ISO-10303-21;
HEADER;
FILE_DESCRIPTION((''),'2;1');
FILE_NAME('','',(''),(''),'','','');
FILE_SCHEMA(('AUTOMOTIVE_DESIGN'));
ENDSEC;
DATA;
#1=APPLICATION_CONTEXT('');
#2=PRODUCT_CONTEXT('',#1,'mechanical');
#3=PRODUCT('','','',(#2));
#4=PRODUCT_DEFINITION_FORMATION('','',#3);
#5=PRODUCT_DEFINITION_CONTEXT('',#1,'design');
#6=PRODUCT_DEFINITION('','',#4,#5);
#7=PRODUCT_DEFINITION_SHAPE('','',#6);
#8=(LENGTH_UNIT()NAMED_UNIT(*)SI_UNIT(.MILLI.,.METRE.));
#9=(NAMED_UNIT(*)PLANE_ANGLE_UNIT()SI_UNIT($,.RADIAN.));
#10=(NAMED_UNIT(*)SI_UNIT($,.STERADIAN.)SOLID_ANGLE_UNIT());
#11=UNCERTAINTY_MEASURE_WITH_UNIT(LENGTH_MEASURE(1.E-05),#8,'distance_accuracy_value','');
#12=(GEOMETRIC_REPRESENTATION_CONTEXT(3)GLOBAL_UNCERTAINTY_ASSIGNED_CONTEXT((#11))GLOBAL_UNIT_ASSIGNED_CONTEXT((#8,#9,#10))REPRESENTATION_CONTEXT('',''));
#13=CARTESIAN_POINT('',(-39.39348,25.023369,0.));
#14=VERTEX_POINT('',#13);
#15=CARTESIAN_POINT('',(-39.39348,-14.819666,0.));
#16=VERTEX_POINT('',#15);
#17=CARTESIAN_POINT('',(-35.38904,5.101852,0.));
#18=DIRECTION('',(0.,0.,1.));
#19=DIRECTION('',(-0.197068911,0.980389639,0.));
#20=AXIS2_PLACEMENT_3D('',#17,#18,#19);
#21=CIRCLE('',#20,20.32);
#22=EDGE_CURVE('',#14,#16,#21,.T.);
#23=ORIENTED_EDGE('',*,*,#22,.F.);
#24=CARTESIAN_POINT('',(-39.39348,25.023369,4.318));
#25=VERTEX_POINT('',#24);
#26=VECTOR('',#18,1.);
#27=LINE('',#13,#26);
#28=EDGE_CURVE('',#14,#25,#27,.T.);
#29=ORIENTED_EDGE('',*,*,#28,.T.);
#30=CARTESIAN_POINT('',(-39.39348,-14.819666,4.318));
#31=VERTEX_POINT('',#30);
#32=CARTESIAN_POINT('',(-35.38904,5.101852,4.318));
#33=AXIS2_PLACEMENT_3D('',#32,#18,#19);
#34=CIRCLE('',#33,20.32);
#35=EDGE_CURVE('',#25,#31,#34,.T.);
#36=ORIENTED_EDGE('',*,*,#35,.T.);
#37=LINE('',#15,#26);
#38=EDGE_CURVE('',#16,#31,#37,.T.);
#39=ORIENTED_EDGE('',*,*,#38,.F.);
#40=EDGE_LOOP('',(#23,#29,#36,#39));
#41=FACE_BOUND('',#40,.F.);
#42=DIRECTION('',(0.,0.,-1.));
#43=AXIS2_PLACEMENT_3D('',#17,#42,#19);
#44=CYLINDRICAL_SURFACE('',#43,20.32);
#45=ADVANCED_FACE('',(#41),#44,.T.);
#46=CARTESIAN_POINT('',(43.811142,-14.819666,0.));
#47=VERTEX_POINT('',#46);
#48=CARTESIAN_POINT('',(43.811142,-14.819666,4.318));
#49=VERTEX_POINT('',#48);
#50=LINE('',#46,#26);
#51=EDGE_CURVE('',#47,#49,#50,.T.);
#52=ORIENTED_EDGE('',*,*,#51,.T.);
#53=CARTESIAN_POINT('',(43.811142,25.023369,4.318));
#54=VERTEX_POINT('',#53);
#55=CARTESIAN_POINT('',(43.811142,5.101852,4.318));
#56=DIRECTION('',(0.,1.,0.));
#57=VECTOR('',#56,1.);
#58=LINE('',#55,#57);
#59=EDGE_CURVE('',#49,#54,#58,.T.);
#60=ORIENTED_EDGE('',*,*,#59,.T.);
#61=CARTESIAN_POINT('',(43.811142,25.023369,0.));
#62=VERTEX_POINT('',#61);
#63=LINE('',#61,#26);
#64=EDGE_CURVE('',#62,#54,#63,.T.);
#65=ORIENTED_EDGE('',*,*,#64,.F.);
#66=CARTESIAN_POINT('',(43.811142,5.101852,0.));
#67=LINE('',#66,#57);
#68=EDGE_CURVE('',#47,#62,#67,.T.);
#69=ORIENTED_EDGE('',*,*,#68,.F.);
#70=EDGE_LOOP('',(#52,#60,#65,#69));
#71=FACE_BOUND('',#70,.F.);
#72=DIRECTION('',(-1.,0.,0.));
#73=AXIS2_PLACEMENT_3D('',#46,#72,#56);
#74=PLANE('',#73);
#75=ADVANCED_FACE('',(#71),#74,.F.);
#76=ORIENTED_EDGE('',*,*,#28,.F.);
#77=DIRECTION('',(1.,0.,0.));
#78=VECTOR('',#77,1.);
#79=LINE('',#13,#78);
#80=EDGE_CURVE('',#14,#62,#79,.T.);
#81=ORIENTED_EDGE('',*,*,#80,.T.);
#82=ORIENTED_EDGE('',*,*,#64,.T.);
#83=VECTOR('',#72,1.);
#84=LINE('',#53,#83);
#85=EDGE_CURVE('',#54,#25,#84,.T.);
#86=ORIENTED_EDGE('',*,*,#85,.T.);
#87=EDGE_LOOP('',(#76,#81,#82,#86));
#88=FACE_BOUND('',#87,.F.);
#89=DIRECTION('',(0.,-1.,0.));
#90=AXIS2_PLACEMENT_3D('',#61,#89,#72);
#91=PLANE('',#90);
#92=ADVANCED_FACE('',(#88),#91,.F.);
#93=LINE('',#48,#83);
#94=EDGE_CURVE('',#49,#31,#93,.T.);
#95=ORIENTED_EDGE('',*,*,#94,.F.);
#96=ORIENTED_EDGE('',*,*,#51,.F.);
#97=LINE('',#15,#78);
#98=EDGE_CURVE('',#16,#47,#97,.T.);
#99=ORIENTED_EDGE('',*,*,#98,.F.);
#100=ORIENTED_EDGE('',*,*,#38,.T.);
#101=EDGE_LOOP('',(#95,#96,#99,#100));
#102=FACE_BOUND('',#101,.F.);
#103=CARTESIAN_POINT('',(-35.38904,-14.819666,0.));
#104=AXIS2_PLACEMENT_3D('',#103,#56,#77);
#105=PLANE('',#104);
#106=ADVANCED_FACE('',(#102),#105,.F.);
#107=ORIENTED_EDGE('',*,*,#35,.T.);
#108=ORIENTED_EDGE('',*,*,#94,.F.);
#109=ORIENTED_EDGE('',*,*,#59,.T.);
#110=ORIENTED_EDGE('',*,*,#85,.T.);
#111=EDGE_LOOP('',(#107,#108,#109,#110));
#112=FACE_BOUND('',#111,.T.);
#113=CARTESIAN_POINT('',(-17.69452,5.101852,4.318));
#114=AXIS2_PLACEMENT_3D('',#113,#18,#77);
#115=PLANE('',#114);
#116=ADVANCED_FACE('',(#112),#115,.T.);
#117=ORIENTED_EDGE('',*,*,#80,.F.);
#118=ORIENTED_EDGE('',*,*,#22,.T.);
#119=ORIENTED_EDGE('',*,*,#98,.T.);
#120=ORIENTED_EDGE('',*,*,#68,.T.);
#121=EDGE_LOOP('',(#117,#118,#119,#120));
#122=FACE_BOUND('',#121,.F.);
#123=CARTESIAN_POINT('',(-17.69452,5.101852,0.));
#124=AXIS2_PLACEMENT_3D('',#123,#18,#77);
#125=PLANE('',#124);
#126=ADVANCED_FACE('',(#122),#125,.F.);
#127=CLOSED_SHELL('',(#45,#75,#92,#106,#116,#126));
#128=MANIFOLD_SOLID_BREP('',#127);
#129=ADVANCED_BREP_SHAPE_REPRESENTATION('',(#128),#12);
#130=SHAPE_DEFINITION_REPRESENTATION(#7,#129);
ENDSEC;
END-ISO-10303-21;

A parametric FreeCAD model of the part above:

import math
import FreeCAD as App
import Part
import Sketcher
Q = App.Units.Quantity


def add_polygon(sketch, points):
    """Adds a closed chain of lines whose ends are joined by coincident constraints."""
    first, n = sketch.GeometryCount, len(points)
    for a, b in zip(points, points[1:] + points[:1]):
        sketch.addGeometry(Part.LineSegment(App.Vector(*a, 0), App.Vector(*b, 0)), False)
    for i in range(n):
        sketch.addConstraint(Sketcher.Constraint("Coincident", first + i, 2, first + (i + 1) % n, 1))

doc = App.newDocument("Part")
body = doc.addObject("PartDesign::Body", "Body")

sketch1 = doc.addObject("Sketcher::SketchObject", "Sketch")
body.addObject(sketch1)
sketch1.AttachmentSupport = (doc.XY_Plane, [""])
sketch1.MapMode = "FlatFace"
sketch1.addGeometry(Part.LineSegment(App.Vector(-35.4, 25, 0), App.Vector(-39.4, 25, 0)), False)
sketch1.addGeometry(Part.ArcOfCircle(Part.Circle(App.Vector(-35.4, 5.1, 0), App.Vector(0, 0, 1), 20.3), math.radians(101), math.radians(259)), False)
sketch1.addGeometry(Part.LineSegment(App.Vector(-39.4, -14.8, 0), App.Vector(-35.4, -14.8, 0)), False)
sketch1.addGeometry(Part.LineSegment(App.Vector(-35.4, -14.8, 0), App.Vector(-35.4, 25, 0)), False)
sketch1.addConstraint(Sketcher.Constraint("Coincident", 0, 2, 1, 1))
sketch1.addConstraint(Sketcher.Constraint("Coincident", 1, 2, 2, 1))
sketch1.addConstraint(Sketcher.Constraint("Coincident", 2, 2, 3, 1))
sketch1.addConstraint(Sketcher.Constraint("Coincident", 3, 2, 0, 1))
sketch1.addConstraint(Sketcher.Constraint("Horizontal", 0))
sketch1.addConstraint(Sketcher.Constraint("Horizontal", 2))
sketch1.addConstraint(Sketcher.Constraint("Vertical", 3))
sketch1.addConstraint(Sketcher.Constraint("Vertical", 0, 2, 1, 2))
sketch1.addConstraint(Sketcher.Constraint("Vertical", 1, 3, 2, 2))
sketch1.addConstraint(Sketcher.Constraint("Radius", 1, Q("0.8 in")))
sketch1.addConstraint(Sketcher.Constraint("DistanceX", 0, 2, 0, 1, 4.00444))
sketch1.addConstraint(Sketcher.Constraint("DistanceX", 1, 3, -1, 1, 35.38904))
sketch1.addConstraint(Sketcher.Constraint("DistanceY", -1, 1, 1, 3, 5.101852))
pad1 = doc.addObject("PartDesign::Pad", "Pad")
body.addObject(pad1)
pad1.Profile = sketch1
pad1.Length = Q("0.17 in")

sketch2 = doc.addObject("Sketcher::SketchObject", "Sketch001")
body.addObject(sketch2)
sketch2.AttachmentSupport = (doc.XY_Plane, [""])
sketch2.MapMode = "FlatFace"
add_polygon(sketch2, [(-35, 25), (-35, -15), (44, -15), (44, 25)])
sketch2.addConstraint(Sketcher.Constraint("Vertical", 0))
sketch2.addConstraint(Sketcher.Constraint("Horizontal", 1))
sketch2.addConstraint(Sketcher.Constraint("Vertical", 2))
sketch2.addConstraint(Sketcher.Constraint("Horizontal", 3))
sketch2.addConstraint(Sketcher.Constraint("DistanceX", 1, 1, 1, 2, 79.200182))
sketch2.addConstraint(Sketcher.Constraint("DistanceY", 0, 2, 0, 1, 39.843035))
sketch2.addConstraint(Sketcher.Constraint("DistanceX", 0, 2, -1, 1, 35.38904))
sketch2.addConstraint(Sketcher.Constraint("DistanceY", -1, 1, 2, 2, 25.023369))
pad2 = doc.addObject("PartDesign::Pad", "Pad001")
body.addObject(pad2)
pad2.Profile = sketch2
pad2.Length = Q("0.17 in")

doc.recompute()
